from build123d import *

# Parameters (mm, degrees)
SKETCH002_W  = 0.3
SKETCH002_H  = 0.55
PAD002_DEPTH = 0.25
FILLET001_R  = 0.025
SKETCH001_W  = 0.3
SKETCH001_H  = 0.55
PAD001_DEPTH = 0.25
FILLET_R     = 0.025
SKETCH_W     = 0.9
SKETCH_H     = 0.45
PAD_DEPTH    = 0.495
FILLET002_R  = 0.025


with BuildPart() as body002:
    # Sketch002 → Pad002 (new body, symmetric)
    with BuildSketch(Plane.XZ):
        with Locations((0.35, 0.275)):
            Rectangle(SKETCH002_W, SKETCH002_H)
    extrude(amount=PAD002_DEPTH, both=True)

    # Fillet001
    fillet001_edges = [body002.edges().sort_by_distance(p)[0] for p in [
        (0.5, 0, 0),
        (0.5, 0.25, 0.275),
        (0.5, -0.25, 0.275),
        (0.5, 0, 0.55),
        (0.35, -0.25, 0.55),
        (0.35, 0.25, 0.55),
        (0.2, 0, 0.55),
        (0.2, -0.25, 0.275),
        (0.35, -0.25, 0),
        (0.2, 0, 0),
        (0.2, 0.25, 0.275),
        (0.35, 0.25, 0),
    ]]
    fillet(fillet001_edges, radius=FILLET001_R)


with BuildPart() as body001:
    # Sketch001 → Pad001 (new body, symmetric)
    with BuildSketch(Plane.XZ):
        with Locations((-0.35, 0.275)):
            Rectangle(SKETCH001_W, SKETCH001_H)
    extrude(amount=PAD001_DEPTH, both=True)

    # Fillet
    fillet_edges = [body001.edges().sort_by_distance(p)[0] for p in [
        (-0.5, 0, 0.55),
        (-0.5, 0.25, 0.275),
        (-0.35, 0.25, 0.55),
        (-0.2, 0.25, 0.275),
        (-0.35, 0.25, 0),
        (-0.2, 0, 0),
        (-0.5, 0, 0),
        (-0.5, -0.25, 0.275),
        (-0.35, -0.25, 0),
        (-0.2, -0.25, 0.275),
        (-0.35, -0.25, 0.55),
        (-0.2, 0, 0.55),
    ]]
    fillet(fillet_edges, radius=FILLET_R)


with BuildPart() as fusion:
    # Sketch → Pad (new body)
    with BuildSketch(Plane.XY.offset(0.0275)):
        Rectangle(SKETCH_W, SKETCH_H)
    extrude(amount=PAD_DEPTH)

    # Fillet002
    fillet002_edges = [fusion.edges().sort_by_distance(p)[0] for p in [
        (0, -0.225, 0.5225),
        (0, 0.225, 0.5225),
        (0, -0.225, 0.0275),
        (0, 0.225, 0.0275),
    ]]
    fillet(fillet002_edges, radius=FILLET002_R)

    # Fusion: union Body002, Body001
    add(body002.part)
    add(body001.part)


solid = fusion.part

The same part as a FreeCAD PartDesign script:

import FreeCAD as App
import Part
import Sketcher

V = App.Vector


def edges_at(feature, points):
    """Names of the edges that pass closest to the given points."""
    edges = feature.Shape.Edges
    near = lambda p: min(range(len(edges)), key=lambda i: edges[i].distToShape(Part.Vertex(*p))[0])
    return sorted({f"Edge{near(p) + 1}" for p in points})

doc = App.newDocument("Part")
params = doc.addObject("Spreadsheet::Sheet", "Params")
for row, (alias, value) in enumerate([
    ("sketch1_width", "0.3 mm"),
    ("sketch1_height", "0.55 mm"),
    ("pad1_length", "0.5 mm"),
    ("fillet_radius", "0.025 mm"),
    ("sketch2_width", "0.3 mm"),
    ("sketch2_height", "0.55 mm"),
    ("pad2_length", "0.5 mm"),
    ("fillet2_radius", "0.025 mm"),
    ("sketch3_width", "0.9 mm"),
    ("sketch3_height", "0.45 mm"),
    ("pad3_length", "0.495 mm"),
    ("fillet3_radius", "0.025 mm"),
], start=1):
    params.set(f"A{row}", alias)
    params.set(f"B{row}", "=" + value)
    params.setAlias(f"B{row}", alias)

body = doc.addObject("PartDesign::Body", "Body")

# Sketch on XZ plane
sketch1 = body.newObject("Sketcher::SketchObject", "Sketch")
sketch1.AttachmentSupport = (doc.getObject("XZ_Plane"), [""])
sketch1.MapMode = "FlatFace"
sketch1.addGeometry(Part.LineSegment(V(0.2, 0.55, 0), V(0.2, 0, 0)), False)
sketch1.addGeometry(Part.LineSegment(V(0.2, 0, 0), V(0.5, 0, 0)), False)
sketch1.addGeometry(Part.LineSegment(V(0.5, 0, 0), V(0.5, 0.55, 0)), False)
sketch1.addGeometry(Part.LineSegment(V(0.5, 0.55, 0), V(0.2, 0.55, 0)), False)
sketch1.addConstraint(Sketcher.Constraint("Coincident", 0, 2, 1, 1))
sketch1.addConstraint(Sketcher.Constraint("Coincident", 1, 2, 2, 1))
sketch1.addConstraint(Sketcher.Constraint("Coincident", 2, 2, 3, 1))
sketch1.addConstraint(Sketcher.Constraint("Coincident", 3, 2, 0, 1))
sketch1.addConstraint(Sketcher.Constraint("Vertical", 0))
sketch1.addConstraint(Sketcher.Constraint("Horizontal", 1))
sketch1.addConstraint(Sketcher.Constraint("Vertical", 2))
sketch1.addConstraint(Sketcher.Constraint("Horizontal", 3))
sketch1.addConstraint(Sketcher.Constraint("PointOnObject", 0, 2, -1))
sketch1.addConstraint(Sketcher.Constraint("DistanceX", 1, 1, 1, 2, 0.3))
sketch1.addConstraint(Sketcher.Constraint("DistanceY", 0, 2, 0, 1, 0.55))
sketch1.addConstraint(Sketcher.Constraint("DistanceX", -1, 1, 0, 2, 0.2))
sketch1.setExpression("Constraints[9]", "Params.sketch1_width")
sketch1.setExpression("Constraints[10]", "Params.sketch1_height")
pad1 = body.newObject("PartDesign::Pad", "Pad")
pad1.Profile = sketch1
pad1.setExpression("Length", "Params.pad1_length")
pad1.Midplane = True
doc.recompute()

fillet = body.newObject("PartDesign::Fillet", "Fillet")
fillet.Base = (pad1, ["Edge1"])
fillet.UseAllEdges = True
fillet.setExpression("Radius", "Params.fillet_radius")
body2 = doc.addObject("PartDesign::Body", "Body001")

# Sketch on XZ plane
sketch2 = body2.newObject("Sketcher::SketchObject", "Sketch001")
sketch2.AttachmentSupport = (doc.getObject("XZ_Plane001"), [""])
sketch2.MapMode = "FlatFace"
sketch2.addGeometry(Part.LineSegment(V(-0.5, 0.55, 0), V(-0.5, 0, 0)), False)
sketch2.addGeometry(Part.LineSegment(V(-0.5, 0, 0), V(-0.2, 0, 0)), False)
sketch2.addGeometry(Part.LineSegment(V(-0.2, 0, 0), V(-0.2, 0.55, 0)), False)
sketch2.addGeometry(Part.LineSegment(V(-0.2, 0.55, 0), V(-0.5, 0.55, 0)), False)
sketch2.addConstraint(Sketcher.Constraint("Coincident", 0, 2, 1, 1))
sketch2.addConstraint(Sketcher.Constraint("Coincident", 1, 2, 2, 1))
sketch2.addConstraint(Sketcher.Constraint("Coincident", 2, 2, 3, 1))
sketch2.addConstraint(Sketcher.Constraint("Coincident", 3, 2, 0, 1))
sketch2.addConstraint(Sketcher.Constraint("Vertical", 0))
sketch2.addConstraint(Sketcher.Constraint("Horizontal", 1))
sketch2.addConstraint(Sketcher.Constraint("Vertical", 2))
sketch2.addConstraint(Sketcher.Constraint("Horizontal", 3))
sketch2.addConstraint(Sketcher.Constraint("PointOnObject", 0, 2, -1))
sketch2.addConstraint(Sketcher.Constraint("DistanceX", 1, 1, 1, 2, 0.3))
sketch2.addConstraint(Sketcher.Constraint("DistanceY", 0, 2, 0, 1, 0.55))
sketch2.addConstraint(Sketcher.Constraint("DistanceX", 0, 2, -1, 1, 0.5))
sketch2.setExpression("Constraints[9]", "Params.sketch2_width")
sketch2.setExpression("Constraints[10]", "Params.sketch2_height")
pad2 = body2.newObject("PartDesign::Pad", "Pad001")
pad2.Profile = sketch2
pad2.setExpression("Length", "Params.pad2_length")
pad2.Midplane = True
doc.recompute()

fillet2 = body2.newObject("PartDesign::Fillet", "Fillet001")
fillet2.Base = (pad2, ["Edge1"])
fillet2.UseAllEdges = True
fillet2.setExpression("Radius", "Params.fillet2_radius")
body3 = doc.addObject("PartDesign::Body", "Body002")

# Sketch on XY plane
sketch3 = body3.newObject("Sketcher::SketchObject", "Sketch002")
sketch3.AttachmentSupport = (doc.getObject("XY_Plane002"), [""])
sketch3.MapMode = "FlatFace"
sketch3.AttachmentOffset = App.Placement(V(0, 0, 0.0275), App.Rotation())
sketch3.addGeometry(Part.LineSegment(V(-0.45, 0.23, 0), V(-0.45, -0.23, 0)), False)
sketch3.addGeometry(Part.LineSegment(V(-0.45, -0.23, 0), V(0.45, -0.23, 0)), False)
sketch3.addGeometry(Part.LineSegment(V(0.45, -0.23, 0), V(0.45, 0.23, 0)), False)
sketch3.addGeometry(Part.LineSegment(V(0.45, 0.23, 0), V(-0.45, 0.23, 0)), False)
sketch3.addConstraint(Sketcher.Constraint("Coincident", 0, 2, 1, 1))
sketch3.addConstraint(Sketcher.Constraint("Coincident", 1, 2, 2, 1))
sketch3.addConstraint(Sketcher.Constraint("Coincident", 2, 2, 3, 1))
sketch3.addConstraint(Sketcher.Constraint("Coincident", 3, 2, 0, 1))
sketch3.addConstraint(Sketcher.Constraint("Vertical", 0))
sketch3.addConstraint(Sketcher.Constraint("Horizontal", 1))
sketch3.addConstraint(Sketcher.Constraint("Vertical", 2))
sketch3.addConstraint(Sketcher.Constraint("Horizontal", 3))
sketch3.addConstraint(Sketcher.Constraint("Symmetric", 0, 2, 2, 2, -1, 1))
sketch3.addConstraint(Sketcher.Constraint("DistanceX", 1, 1, 1, 2, 0.9))
sketch3.addConstraint(Sketcher.Constraint("DistanceY", 0, 2, 0, 1, 0.45))
sketch3.setExpression("Constraints[9]", "Params.sketch3_width")
sketch3.setExpression("Constraints[10]", "Params.sketch3_height")
pad3 = body3.newObject("PartDesign::Pad", "Pad002")
pad3.Profile = sketch3
pad3.setExpression("Length", "Params.pad3_length")
doc.recompute()

fillet3 = body3.newObject("PartDesign::Fillet", "Fillet002")
fillet3.Base = (pad3, edges_at(pad3, [
    (0, -0.225, 0.522),
    (0, 0.225, 0.522),
    (0, -0.225, 0.028),
    (0, 0.225, 0.028),
]))
fillet3.setExpression("Radius", "Params.fillet3_radius")
doc.recompute()

boolean = body3.newObject("PartDesign::Boolean", "Boolean")
boolean.Type = "Fuse"
boolean.addObjects([body])
doc.recompute()

boolean2 = body3.newObject("PartDesign::Boolean", "Boolean001")
boolean2.Type = "Fuse"
boolean2.addObjects([body2])

doc.recompute()
